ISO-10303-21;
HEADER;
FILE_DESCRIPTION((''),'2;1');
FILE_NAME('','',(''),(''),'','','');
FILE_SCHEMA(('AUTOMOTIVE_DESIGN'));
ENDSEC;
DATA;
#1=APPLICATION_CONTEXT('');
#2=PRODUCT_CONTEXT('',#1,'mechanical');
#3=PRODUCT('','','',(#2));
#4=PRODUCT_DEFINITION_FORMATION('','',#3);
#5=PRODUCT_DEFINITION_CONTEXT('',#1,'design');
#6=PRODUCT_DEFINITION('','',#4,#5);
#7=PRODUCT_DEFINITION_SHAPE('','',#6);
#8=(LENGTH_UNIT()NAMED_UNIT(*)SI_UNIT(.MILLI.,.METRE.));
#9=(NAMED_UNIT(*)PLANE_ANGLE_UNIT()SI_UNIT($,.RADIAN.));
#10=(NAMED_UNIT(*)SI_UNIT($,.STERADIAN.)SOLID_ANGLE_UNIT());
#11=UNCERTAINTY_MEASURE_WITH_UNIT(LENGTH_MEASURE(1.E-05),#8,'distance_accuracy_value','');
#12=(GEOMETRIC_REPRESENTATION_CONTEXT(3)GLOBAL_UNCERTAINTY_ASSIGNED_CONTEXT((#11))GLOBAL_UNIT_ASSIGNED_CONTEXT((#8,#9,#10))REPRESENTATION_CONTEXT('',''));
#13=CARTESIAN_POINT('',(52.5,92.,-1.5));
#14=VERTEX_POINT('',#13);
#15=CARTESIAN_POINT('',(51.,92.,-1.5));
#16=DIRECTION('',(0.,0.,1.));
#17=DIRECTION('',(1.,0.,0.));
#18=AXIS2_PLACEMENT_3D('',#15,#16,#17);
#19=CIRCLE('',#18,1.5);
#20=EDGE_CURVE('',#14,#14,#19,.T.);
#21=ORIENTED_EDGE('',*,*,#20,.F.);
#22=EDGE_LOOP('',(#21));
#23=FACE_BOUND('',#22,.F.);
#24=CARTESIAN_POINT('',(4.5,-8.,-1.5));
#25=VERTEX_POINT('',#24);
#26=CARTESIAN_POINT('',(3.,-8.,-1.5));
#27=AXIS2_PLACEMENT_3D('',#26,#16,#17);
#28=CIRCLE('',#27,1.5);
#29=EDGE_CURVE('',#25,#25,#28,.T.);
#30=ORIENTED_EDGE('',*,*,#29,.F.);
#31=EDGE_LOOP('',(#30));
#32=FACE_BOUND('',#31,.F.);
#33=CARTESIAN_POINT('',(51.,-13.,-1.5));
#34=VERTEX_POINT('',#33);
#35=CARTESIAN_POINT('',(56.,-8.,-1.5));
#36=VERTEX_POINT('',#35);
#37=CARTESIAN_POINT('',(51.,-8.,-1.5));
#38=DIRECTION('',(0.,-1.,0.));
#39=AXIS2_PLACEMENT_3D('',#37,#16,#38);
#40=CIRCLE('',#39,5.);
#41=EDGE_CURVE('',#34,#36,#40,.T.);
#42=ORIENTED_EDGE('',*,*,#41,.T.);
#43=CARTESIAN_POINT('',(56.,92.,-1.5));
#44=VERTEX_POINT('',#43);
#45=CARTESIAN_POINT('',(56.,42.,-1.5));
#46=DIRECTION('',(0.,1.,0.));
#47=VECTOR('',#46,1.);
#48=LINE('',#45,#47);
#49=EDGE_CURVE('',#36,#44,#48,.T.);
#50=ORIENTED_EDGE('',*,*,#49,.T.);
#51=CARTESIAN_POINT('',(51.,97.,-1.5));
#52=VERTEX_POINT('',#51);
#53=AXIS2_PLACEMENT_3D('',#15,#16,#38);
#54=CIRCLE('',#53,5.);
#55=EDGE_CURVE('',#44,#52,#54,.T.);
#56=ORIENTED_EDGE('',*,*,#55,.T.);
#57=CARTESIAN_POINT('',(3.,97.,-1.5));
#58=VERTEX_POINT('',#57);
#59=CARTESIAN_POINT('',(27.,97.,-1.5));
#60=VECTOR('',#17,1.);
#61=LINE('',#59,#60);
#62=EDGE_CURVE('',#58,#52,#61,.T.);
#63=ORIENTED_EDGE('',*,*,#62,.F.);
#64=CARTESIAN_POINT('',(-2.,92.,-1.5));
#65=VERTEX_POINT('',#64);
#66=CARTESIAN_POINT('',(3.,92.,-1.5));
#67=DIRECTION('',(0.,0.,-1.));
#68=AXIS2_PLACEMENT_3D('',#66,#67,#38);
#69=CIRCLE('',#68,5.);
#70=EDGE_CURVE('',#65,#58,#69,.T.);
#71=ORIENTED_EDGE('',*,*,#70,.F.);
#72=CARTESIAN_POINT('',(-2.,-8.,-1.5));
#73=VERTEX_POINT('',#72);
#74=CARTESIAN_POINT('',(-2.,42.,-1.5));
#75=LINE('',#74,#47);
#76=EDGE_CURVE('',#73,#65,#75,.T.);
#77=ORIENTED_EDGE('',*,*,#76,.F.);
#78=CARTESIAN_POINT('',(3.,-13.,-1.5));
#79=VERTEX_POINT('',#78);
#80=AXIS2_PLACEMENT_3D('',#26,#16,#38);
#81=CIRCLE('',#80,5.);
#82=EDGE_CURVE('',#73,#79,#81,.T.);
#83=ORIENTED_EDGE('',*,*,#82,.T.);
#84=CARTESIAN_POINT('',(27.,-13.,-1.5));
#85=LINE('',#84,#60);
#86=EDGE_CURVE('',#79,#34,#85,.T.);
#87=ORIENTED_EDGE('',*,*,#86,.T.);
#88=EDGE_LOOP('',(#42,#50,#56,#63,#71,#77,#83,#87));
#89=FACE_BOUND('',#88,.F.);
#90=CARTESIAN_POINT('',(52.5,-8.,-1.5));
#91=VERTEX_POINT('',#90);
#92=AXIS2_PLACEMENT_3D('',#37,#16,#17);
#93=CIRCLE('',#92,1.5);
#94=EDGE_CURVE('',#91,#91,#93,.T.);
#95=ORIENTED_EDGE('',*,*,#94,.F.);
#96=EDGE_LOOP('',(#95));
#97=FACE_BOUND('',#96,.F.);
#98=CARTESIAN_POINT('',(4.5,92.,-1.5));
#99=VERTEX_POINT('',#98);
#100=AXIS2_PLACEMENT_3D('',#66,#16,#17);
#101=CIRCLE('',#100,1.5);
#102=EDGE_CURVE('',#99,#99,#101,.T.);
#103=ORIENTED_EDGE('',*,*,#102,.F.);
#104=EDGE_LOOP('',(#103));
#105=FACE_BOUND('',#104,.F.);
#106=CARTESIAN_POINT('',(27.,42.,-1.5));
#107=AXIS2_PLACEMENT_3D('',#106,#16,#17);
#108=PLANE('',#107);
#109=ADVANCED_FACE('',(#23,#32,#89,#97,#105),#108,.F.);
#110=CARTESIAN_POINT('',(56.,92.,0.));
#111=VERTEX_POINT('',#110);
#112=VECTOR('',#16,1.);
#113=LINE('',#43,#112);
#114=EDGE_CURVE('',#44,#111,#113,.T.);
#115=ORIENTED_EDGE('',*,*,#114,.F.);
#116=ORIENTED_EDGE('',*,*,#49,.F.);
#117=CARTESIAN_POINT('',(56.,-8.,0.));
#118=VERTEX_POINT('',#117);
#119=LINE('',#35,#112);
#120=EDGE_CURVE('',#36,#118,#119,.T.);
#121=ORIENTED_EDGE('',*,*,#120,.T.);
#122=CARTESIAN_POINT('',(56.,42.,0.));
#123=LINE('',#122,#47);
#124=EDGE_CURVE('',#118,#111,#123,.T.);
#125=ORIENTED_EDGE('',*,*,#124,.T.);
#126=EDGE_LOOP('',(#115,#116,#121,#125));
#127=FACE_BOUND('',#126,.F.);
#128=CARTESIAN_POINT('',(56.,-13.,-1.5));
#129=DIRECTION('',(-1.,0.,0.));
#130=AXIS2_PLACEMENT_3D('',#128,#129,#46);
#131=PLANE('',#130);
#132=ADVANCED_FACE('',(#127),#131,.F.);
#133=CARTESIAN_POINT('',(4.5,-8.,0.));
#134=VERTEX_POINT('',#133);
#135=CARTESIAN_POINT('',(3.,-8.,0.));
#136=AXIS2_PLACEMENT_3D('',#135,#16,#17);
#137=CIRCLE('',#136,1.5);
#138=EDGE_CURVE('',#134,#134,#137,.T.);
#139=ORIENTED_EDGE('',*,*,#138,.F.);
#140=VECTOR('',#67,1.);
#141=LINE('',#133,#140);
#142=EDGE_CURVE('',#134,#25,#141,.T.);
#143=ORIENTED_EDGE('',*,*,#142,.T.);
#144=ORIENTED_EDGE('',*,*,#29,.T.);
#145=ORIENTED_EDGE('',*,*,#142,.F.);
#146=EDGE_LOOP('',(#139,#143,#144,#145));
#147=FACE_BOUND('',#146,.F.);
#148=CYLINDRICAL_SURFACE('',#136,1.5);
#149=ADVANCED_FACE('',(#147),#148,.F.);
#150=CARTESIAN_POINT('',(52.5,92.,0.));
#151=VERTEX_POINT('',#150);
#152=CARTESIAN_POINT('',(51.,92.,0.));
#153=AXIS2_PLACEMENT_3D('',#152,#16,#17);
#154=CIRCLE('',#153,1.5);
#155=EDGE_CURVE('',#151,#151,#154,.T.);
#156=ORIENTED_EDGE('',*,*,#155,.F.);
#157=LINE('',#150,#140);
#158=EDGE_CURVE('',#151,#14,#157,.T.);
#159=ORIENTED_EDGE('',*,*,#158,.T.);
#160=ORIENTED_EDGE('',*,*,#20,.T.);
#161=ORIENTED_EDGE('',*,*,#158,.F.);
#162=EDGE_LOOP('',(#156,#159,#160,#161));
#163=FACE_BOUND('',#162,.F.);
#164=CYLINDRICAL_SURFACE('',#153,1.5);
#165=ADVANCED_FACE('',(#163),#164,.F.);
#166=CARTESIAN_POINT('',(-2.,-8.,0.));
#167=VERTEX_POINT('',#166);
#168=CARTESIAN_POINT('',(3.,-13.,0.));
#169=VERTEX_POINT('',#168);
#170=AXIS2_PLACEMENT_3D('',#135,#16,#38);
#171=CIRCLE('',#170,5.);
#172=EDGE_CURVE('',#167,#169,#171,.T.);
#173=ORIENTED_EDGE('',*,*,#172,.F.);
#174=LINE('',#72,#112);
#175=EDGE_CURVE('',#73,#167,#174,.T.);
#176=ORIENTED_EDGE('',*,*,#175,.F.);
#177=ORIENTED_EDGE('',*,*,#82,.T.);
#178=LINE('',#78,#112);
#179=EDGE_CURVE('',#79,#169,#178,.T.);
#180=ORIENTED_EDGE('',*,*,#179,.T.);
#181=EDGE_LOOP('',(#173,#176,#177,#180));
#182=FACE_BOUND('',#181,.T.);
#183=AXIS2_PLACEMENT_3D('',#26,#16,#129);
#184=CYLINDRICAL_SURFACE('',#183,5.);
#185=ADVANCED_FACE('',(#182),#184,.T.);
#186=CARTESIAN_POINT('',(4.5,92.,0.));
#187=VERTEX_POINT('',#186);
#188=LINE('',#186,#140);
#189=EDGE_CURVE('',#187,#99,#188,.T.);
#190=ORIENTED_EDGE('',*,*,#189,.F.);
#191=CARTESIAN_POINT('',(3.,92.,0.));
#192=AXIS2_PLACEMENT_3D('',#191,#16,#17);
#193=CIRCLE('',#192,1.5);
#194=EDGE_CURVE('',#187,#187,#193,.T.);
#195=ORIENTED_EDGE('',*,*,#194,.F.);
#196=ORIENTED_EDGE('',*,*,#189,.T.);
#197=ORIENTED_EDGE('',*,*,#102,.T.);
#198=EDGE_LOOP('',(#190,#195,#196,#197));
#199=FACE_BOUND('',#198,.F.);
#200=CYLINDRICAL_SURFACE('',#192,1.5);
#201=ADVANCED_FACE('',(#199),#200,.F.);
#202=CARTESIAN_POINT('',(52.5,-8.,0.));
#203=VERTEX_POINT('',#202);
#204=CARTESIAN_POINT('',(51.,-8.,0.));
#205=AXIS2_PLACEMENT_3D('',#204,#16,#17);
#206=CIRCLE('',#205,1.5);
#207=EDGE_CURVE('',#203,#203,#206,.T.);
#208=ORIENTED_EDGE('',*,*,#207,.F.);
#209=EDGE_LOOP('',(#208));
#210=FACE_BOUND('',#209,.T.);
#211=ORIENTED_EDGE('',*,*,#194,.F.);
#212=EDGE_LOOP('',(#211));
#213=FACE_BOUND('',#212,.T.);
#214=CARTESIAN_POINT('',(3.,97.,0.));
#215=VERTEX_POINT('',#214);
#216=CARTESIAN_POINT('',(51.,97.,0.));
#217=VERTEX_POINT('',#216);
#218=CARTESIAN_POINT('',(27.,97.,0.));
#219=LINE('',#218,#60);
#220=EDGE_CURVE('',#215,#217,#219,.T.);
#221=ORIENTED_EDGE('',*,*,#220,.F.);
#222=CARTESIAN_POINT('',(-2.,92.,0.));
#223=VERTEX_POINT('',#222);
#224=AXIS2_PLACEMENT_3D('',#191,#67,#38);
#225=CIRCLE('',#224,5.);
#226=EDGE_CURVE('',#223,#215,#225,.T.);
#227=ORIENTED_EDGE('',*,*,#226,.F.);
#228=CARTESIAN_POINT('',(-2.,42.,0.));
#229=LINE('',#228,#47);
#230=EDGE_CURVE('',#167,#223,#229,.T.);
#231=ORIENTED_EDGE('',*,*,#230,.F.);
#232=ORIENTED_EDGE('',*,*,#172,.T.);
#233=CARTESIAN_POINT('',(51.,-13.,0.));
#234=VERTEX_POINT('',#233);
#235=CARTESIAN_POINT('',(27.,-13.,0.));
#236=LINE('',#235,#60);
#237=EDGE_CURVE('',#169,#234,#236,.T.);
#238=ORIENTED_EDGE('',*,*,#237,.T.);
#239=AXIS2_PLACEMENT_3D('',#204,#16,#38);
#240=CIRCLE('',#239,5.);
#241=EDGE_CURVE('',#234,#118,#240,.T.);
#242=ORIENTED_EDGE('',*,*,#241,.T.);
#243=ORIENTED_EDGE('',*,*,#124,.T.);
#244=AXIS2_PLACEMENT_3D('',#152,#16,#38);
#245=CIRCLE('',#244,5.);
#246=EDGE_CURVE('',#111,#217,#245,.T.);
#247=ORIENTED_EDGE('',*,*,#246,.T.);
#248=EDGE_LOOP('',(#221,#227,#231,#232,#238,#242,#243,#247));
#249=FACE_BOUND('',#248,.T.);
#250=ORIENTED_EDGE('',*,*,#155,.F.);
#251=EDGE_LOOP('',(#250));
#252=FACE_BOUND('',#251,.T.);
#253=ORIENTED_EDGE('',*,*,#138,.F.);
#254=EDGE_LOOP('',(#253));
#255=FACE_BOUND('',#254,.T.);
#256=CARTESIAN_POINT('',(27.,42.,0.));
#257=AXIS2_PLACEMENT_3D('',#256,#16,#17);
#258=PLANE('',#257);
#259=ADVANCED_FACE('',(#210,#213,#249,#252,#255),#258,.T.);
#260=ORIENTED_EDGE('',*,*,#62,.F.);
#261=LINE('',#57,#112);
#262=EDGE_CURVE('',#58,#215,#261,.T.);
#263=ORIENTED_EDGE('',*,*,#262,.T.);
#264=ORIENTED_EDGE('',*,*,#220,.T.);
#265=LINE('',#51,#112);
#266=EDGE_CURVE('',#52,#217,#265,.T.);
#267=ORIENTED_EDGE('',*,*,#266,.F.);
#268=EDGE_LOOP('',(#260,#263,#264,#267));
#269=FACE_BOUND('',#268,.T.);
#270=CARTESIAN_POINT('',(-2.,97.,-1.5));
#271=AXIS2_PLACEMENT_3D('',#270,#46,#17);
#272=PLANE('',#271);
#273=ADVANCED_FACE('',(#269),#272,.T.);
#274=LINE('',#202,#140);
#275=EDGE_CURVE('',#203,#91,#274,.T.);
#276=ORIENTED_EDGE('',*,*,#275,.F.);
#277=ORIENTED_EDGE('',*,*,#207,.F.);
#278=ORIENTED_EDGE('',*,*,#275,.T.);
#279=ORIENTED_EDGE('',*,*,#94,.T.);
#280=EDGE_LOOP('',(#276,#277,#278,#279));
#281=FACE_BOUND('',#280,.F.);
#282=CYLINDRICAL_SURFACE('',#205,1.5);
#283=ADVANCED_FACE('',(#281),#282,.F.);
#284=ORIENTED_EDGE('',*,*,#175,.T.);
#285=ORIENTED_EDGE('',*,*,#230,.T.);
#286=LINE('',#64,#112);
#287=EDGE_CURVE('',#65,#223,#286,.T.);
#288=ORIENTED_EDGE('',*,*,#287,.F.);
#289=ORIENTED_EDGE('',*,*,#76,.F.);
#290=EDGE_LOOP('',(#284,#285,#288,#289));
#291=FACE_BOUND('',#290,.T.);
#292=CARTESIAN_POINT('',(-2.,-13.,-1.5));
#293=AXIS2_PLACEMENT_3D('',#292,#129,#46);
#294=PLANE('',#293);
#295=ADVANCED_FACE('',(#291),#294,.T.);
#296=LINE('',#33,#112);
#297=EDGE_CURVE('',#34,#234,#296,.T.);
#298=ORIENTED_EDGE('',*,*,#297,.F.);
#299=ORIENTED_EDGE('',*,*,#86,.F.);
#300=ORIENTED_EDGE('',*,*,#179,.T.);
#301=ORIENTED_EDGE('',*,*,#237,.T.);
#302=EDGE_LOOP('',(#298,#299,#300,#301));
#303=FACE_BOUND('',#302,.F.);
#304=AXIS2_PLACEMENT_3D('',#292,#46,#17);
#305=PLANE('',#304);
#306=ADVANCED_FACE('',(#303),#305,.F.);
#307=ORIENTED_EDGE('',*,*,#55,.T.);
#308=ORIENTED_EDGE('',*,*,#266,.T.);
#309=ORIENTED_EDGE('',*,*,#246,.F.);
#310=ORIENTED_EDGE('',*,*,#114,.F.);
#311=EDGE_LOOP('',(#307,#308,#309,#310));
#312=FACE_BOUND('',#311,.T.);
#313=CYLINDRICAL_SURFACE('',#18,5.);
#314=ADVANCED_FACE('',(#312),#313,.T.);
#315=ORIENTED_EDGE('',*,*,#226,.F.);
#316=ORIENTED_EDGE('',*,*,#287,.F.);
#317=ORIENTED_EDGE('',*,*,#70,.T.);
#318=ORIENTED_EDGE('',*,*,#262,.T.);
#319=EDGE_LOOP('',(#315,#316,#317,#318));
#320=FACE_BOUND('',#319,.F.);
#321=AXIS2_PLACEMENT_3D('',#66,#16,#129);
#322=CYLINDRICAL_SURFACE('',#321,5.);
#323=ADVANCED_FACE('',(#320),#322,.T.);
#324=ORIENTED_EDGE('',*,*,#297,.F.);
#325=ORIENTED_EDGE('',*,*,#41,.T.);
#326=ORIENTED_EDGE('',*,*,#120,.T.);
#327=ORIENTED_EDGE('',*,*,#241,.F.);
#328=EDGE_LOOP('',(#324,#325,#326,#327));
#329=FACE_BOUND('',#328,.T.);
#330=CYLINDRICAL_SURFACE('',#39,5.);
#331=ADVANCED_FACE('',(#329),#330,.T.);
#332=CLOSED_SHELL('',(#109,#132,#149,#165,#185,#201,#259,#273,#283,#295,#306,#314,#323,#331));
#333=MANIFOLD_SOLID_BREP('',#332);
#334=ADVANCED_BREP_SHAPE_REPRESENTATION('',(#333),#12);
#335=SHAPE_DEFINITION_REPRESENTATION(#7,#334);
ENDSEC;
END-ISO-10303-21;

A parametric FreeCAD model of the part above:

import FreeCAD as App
import Part
import Sketcher

V = App.Vector


def edges_at(feature, points):
    """Names of the edges that pass closest to the given points."""
    edges = feature.Shape.Edges
    near = lambda p: min(range(len(edges)), key=lambda i: edges[i].distToShape(Part.Vertex(*p))[0])
    return sorted({f"Edge{near(p) + 1}" for p in points})

doc = App.newDocument("Part")
body = doc.addObject("PartDesign::Body", "Body")

sketch1 = body.newObject("Sketcher::SketchObject", "Sketch")
sketch1.AttachmentSupport = (doc.getObject("XY_Plane"), [""])
sketch1.MapMode = "FlatFace"
sketch1.AttachmentOffset = App.Placement(V(0, 0, -1.5), App.Rotation())
sketch1.addGeometry([
    Part.LineSegment(V(-2, 97, 0), V(-2, -13, 0)),
    Part.LineSegment(V(-2, -13, 0), V(56, -13, 0)),
    Part.LineSegment(V(56, -13, 0), V(56, 97, 0)),
    Part.LineSegment(V(56, 97, 0), V(-2, 97, 0)),
], False)
sketch1.addConstraint([
    Sketcher.Constraint("Coincident", 0, 2, 1, 1),
    Sketcher.Constraint("Coincident", 1, 2, 2, 1),
    Sketcher.Constraint("Coincident", 2, 2, 3, 1),
    Sketcher.Constraint("Coincident", 3, 2, 0, 1),
    Sketcher.Constraint("Vertical", 0),
    Sketcher.Constraint("Horizontal", 1),
    Sketcher.Constraint("Vertical", 2),
    Sketcher.Constraint("Horizontal", 3),
    Sketcher.Constraint("DistanceX", 1, 1, 1, 2, 58.0),
    Sketcher.Constraint("DistanceY", 0, 2, 0, 1, 110.0),
    Sketcher.Constraint("DistanceX", 0, 2, -1, 1, 2.0),
    Sketcher.Constraint("DistanceY", 0, 2, -1, 1, 13.0),
])
pad1 = body.newObject("PartDesign::Pad", "Pad")
pad1.Profile = sketch1
pad1.Length = 1.5
doc.recompute()

fillet = body.newObject("PartDesign::Fillet", "Fillet")
fillet.Base = (pad1, edges_at(pad1, [
    (-2, -13, -0.75),
    (-2, 97, -0.75),
    (56, -13, -0.75),
    (56, 97, -0.75),
]))
fillet.Radius = 5

sketch2 = body.newObject("Sketcher::SketchObject", "Sketch001")
sketch2.AttachmentSupport = (doc.getObject("XY_Plane"), [""])
sketch2.MapMode = "FlatFace"
sketch2.addGeometry([
    Part.Circle(V(3, 92, 0), V(0, 0, 1), 1.5),
    Part.Circle(V(51, 92, 0), V(0, 0, 1), 1.5),
    Part.Circle(V(3, -8, 0), V(0, 0, 1), 1.5),
    Part.Circle(V(51, -8, 0), V(0, 0, 1), 1.5),
], False)
sketch2.addConstraint([
    Sketcher.Constraint("Equal", 0, 1),
    Sketcher.Constraint("Equal", 1, 2),
    Sketcher.Constraint("Equal", 2, 3),
    Sketcher.Constraint("Horizontal", 0, 3, 1, 3),
    Sketcher.Constraint("Horizontal", 2, 3, 3, 3),
    Sketcher.Constraint("Vertical", 0, 3, 2, 3),
    Sketcher.Constraint("Vertical", 1, 3, 3, 3),
    Sketcher.Constraint("Diameter", 0, 3.0),
    Sketcher.Constraint("DistanceX", -1, 1, 0, 3, 3.0),
    Sketcher.Constraint("DistanceY", -1, 1, 0, 3, 92.0),
    Sketcher.Constraint("DistanceX", -1, 1, 1, 3, 51.0),
    Sketcher.Constraint("DistanceY", 2, 3, -1, 1, 8.0),
])
pocket1 = body.newObject("PartDesign::Pocket", "Pocket")
pocket1.Profile = sketch2
pocket1.Length = 5

doc.recompute()
